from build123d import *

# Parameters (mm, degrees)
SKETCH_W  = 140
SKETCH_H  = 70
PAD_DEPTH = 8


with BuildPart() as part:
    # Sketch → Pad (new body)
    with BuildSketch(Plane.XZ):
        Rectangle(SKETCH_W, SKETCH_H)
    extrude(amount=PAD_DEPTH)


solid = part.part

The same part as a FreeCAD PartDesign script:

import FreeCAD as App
import Part
import Sketcher

doc = App.newDocument("Part")
body = doc.addObject("PartDesign::Body", "Body")

sketch1 = body.newObject("Sketcher::SketchObject", "Sketch")
sketch1.AttachmentSupport = (doc.getObject("XZ_Plane"), [""])
sketch1.MapMode = "FlatFace"
sketch1.addGeometry([
    Part.LineSegment(App.Vector(-70, 35, 0), App.Vector(-70, -35, 0)),
    Part.LineSegment(App.Vector(-70, -35, 0), App.Vector(70, -35, 0)),
    Part.LineSegment(App.Vector(70, -35, 0), App.Vector(70, 35, 0)),
    Part.LineSegment(App.Vector(70, 35, 0), App.Vector(-70, 35, 0)),
], False)
sketch1.addConstraint([
    Sketcher.Constraint("Coincident", 0, 2, 1, 1),
    Sketcher.Constraint("Coincident", 1, 2, 2, 1),
    Sketcher.Constraint("Coincident", 2, 2, 3, 1),
    Sketcher.Constraint("Coincident", 3, 2, 0, 1),
    Sketcher.Constraint("Vertical", 0),
    Sketcher.Constraint("Horizontal", 1),
    Sketcher.Constraint("Vertical", 2),
    Sketcher.Constraint("Horizontal", 3),
    Sketcher.Constraint("Symmetric", 0, 2, 2, 2, -1, 1),
    Sketcher.Constraint("DistanceX", 1, 1, 1, 2, 140.0),
    Sketcher.Constraint("DistanceY", 0, 2, 0, 1, 70.0),
])
pad1 = body.newObject("PartDesign::Pad", "Pad")
pad1.Profile = sketch1
pad1.Length = 8

doc.recompute()
